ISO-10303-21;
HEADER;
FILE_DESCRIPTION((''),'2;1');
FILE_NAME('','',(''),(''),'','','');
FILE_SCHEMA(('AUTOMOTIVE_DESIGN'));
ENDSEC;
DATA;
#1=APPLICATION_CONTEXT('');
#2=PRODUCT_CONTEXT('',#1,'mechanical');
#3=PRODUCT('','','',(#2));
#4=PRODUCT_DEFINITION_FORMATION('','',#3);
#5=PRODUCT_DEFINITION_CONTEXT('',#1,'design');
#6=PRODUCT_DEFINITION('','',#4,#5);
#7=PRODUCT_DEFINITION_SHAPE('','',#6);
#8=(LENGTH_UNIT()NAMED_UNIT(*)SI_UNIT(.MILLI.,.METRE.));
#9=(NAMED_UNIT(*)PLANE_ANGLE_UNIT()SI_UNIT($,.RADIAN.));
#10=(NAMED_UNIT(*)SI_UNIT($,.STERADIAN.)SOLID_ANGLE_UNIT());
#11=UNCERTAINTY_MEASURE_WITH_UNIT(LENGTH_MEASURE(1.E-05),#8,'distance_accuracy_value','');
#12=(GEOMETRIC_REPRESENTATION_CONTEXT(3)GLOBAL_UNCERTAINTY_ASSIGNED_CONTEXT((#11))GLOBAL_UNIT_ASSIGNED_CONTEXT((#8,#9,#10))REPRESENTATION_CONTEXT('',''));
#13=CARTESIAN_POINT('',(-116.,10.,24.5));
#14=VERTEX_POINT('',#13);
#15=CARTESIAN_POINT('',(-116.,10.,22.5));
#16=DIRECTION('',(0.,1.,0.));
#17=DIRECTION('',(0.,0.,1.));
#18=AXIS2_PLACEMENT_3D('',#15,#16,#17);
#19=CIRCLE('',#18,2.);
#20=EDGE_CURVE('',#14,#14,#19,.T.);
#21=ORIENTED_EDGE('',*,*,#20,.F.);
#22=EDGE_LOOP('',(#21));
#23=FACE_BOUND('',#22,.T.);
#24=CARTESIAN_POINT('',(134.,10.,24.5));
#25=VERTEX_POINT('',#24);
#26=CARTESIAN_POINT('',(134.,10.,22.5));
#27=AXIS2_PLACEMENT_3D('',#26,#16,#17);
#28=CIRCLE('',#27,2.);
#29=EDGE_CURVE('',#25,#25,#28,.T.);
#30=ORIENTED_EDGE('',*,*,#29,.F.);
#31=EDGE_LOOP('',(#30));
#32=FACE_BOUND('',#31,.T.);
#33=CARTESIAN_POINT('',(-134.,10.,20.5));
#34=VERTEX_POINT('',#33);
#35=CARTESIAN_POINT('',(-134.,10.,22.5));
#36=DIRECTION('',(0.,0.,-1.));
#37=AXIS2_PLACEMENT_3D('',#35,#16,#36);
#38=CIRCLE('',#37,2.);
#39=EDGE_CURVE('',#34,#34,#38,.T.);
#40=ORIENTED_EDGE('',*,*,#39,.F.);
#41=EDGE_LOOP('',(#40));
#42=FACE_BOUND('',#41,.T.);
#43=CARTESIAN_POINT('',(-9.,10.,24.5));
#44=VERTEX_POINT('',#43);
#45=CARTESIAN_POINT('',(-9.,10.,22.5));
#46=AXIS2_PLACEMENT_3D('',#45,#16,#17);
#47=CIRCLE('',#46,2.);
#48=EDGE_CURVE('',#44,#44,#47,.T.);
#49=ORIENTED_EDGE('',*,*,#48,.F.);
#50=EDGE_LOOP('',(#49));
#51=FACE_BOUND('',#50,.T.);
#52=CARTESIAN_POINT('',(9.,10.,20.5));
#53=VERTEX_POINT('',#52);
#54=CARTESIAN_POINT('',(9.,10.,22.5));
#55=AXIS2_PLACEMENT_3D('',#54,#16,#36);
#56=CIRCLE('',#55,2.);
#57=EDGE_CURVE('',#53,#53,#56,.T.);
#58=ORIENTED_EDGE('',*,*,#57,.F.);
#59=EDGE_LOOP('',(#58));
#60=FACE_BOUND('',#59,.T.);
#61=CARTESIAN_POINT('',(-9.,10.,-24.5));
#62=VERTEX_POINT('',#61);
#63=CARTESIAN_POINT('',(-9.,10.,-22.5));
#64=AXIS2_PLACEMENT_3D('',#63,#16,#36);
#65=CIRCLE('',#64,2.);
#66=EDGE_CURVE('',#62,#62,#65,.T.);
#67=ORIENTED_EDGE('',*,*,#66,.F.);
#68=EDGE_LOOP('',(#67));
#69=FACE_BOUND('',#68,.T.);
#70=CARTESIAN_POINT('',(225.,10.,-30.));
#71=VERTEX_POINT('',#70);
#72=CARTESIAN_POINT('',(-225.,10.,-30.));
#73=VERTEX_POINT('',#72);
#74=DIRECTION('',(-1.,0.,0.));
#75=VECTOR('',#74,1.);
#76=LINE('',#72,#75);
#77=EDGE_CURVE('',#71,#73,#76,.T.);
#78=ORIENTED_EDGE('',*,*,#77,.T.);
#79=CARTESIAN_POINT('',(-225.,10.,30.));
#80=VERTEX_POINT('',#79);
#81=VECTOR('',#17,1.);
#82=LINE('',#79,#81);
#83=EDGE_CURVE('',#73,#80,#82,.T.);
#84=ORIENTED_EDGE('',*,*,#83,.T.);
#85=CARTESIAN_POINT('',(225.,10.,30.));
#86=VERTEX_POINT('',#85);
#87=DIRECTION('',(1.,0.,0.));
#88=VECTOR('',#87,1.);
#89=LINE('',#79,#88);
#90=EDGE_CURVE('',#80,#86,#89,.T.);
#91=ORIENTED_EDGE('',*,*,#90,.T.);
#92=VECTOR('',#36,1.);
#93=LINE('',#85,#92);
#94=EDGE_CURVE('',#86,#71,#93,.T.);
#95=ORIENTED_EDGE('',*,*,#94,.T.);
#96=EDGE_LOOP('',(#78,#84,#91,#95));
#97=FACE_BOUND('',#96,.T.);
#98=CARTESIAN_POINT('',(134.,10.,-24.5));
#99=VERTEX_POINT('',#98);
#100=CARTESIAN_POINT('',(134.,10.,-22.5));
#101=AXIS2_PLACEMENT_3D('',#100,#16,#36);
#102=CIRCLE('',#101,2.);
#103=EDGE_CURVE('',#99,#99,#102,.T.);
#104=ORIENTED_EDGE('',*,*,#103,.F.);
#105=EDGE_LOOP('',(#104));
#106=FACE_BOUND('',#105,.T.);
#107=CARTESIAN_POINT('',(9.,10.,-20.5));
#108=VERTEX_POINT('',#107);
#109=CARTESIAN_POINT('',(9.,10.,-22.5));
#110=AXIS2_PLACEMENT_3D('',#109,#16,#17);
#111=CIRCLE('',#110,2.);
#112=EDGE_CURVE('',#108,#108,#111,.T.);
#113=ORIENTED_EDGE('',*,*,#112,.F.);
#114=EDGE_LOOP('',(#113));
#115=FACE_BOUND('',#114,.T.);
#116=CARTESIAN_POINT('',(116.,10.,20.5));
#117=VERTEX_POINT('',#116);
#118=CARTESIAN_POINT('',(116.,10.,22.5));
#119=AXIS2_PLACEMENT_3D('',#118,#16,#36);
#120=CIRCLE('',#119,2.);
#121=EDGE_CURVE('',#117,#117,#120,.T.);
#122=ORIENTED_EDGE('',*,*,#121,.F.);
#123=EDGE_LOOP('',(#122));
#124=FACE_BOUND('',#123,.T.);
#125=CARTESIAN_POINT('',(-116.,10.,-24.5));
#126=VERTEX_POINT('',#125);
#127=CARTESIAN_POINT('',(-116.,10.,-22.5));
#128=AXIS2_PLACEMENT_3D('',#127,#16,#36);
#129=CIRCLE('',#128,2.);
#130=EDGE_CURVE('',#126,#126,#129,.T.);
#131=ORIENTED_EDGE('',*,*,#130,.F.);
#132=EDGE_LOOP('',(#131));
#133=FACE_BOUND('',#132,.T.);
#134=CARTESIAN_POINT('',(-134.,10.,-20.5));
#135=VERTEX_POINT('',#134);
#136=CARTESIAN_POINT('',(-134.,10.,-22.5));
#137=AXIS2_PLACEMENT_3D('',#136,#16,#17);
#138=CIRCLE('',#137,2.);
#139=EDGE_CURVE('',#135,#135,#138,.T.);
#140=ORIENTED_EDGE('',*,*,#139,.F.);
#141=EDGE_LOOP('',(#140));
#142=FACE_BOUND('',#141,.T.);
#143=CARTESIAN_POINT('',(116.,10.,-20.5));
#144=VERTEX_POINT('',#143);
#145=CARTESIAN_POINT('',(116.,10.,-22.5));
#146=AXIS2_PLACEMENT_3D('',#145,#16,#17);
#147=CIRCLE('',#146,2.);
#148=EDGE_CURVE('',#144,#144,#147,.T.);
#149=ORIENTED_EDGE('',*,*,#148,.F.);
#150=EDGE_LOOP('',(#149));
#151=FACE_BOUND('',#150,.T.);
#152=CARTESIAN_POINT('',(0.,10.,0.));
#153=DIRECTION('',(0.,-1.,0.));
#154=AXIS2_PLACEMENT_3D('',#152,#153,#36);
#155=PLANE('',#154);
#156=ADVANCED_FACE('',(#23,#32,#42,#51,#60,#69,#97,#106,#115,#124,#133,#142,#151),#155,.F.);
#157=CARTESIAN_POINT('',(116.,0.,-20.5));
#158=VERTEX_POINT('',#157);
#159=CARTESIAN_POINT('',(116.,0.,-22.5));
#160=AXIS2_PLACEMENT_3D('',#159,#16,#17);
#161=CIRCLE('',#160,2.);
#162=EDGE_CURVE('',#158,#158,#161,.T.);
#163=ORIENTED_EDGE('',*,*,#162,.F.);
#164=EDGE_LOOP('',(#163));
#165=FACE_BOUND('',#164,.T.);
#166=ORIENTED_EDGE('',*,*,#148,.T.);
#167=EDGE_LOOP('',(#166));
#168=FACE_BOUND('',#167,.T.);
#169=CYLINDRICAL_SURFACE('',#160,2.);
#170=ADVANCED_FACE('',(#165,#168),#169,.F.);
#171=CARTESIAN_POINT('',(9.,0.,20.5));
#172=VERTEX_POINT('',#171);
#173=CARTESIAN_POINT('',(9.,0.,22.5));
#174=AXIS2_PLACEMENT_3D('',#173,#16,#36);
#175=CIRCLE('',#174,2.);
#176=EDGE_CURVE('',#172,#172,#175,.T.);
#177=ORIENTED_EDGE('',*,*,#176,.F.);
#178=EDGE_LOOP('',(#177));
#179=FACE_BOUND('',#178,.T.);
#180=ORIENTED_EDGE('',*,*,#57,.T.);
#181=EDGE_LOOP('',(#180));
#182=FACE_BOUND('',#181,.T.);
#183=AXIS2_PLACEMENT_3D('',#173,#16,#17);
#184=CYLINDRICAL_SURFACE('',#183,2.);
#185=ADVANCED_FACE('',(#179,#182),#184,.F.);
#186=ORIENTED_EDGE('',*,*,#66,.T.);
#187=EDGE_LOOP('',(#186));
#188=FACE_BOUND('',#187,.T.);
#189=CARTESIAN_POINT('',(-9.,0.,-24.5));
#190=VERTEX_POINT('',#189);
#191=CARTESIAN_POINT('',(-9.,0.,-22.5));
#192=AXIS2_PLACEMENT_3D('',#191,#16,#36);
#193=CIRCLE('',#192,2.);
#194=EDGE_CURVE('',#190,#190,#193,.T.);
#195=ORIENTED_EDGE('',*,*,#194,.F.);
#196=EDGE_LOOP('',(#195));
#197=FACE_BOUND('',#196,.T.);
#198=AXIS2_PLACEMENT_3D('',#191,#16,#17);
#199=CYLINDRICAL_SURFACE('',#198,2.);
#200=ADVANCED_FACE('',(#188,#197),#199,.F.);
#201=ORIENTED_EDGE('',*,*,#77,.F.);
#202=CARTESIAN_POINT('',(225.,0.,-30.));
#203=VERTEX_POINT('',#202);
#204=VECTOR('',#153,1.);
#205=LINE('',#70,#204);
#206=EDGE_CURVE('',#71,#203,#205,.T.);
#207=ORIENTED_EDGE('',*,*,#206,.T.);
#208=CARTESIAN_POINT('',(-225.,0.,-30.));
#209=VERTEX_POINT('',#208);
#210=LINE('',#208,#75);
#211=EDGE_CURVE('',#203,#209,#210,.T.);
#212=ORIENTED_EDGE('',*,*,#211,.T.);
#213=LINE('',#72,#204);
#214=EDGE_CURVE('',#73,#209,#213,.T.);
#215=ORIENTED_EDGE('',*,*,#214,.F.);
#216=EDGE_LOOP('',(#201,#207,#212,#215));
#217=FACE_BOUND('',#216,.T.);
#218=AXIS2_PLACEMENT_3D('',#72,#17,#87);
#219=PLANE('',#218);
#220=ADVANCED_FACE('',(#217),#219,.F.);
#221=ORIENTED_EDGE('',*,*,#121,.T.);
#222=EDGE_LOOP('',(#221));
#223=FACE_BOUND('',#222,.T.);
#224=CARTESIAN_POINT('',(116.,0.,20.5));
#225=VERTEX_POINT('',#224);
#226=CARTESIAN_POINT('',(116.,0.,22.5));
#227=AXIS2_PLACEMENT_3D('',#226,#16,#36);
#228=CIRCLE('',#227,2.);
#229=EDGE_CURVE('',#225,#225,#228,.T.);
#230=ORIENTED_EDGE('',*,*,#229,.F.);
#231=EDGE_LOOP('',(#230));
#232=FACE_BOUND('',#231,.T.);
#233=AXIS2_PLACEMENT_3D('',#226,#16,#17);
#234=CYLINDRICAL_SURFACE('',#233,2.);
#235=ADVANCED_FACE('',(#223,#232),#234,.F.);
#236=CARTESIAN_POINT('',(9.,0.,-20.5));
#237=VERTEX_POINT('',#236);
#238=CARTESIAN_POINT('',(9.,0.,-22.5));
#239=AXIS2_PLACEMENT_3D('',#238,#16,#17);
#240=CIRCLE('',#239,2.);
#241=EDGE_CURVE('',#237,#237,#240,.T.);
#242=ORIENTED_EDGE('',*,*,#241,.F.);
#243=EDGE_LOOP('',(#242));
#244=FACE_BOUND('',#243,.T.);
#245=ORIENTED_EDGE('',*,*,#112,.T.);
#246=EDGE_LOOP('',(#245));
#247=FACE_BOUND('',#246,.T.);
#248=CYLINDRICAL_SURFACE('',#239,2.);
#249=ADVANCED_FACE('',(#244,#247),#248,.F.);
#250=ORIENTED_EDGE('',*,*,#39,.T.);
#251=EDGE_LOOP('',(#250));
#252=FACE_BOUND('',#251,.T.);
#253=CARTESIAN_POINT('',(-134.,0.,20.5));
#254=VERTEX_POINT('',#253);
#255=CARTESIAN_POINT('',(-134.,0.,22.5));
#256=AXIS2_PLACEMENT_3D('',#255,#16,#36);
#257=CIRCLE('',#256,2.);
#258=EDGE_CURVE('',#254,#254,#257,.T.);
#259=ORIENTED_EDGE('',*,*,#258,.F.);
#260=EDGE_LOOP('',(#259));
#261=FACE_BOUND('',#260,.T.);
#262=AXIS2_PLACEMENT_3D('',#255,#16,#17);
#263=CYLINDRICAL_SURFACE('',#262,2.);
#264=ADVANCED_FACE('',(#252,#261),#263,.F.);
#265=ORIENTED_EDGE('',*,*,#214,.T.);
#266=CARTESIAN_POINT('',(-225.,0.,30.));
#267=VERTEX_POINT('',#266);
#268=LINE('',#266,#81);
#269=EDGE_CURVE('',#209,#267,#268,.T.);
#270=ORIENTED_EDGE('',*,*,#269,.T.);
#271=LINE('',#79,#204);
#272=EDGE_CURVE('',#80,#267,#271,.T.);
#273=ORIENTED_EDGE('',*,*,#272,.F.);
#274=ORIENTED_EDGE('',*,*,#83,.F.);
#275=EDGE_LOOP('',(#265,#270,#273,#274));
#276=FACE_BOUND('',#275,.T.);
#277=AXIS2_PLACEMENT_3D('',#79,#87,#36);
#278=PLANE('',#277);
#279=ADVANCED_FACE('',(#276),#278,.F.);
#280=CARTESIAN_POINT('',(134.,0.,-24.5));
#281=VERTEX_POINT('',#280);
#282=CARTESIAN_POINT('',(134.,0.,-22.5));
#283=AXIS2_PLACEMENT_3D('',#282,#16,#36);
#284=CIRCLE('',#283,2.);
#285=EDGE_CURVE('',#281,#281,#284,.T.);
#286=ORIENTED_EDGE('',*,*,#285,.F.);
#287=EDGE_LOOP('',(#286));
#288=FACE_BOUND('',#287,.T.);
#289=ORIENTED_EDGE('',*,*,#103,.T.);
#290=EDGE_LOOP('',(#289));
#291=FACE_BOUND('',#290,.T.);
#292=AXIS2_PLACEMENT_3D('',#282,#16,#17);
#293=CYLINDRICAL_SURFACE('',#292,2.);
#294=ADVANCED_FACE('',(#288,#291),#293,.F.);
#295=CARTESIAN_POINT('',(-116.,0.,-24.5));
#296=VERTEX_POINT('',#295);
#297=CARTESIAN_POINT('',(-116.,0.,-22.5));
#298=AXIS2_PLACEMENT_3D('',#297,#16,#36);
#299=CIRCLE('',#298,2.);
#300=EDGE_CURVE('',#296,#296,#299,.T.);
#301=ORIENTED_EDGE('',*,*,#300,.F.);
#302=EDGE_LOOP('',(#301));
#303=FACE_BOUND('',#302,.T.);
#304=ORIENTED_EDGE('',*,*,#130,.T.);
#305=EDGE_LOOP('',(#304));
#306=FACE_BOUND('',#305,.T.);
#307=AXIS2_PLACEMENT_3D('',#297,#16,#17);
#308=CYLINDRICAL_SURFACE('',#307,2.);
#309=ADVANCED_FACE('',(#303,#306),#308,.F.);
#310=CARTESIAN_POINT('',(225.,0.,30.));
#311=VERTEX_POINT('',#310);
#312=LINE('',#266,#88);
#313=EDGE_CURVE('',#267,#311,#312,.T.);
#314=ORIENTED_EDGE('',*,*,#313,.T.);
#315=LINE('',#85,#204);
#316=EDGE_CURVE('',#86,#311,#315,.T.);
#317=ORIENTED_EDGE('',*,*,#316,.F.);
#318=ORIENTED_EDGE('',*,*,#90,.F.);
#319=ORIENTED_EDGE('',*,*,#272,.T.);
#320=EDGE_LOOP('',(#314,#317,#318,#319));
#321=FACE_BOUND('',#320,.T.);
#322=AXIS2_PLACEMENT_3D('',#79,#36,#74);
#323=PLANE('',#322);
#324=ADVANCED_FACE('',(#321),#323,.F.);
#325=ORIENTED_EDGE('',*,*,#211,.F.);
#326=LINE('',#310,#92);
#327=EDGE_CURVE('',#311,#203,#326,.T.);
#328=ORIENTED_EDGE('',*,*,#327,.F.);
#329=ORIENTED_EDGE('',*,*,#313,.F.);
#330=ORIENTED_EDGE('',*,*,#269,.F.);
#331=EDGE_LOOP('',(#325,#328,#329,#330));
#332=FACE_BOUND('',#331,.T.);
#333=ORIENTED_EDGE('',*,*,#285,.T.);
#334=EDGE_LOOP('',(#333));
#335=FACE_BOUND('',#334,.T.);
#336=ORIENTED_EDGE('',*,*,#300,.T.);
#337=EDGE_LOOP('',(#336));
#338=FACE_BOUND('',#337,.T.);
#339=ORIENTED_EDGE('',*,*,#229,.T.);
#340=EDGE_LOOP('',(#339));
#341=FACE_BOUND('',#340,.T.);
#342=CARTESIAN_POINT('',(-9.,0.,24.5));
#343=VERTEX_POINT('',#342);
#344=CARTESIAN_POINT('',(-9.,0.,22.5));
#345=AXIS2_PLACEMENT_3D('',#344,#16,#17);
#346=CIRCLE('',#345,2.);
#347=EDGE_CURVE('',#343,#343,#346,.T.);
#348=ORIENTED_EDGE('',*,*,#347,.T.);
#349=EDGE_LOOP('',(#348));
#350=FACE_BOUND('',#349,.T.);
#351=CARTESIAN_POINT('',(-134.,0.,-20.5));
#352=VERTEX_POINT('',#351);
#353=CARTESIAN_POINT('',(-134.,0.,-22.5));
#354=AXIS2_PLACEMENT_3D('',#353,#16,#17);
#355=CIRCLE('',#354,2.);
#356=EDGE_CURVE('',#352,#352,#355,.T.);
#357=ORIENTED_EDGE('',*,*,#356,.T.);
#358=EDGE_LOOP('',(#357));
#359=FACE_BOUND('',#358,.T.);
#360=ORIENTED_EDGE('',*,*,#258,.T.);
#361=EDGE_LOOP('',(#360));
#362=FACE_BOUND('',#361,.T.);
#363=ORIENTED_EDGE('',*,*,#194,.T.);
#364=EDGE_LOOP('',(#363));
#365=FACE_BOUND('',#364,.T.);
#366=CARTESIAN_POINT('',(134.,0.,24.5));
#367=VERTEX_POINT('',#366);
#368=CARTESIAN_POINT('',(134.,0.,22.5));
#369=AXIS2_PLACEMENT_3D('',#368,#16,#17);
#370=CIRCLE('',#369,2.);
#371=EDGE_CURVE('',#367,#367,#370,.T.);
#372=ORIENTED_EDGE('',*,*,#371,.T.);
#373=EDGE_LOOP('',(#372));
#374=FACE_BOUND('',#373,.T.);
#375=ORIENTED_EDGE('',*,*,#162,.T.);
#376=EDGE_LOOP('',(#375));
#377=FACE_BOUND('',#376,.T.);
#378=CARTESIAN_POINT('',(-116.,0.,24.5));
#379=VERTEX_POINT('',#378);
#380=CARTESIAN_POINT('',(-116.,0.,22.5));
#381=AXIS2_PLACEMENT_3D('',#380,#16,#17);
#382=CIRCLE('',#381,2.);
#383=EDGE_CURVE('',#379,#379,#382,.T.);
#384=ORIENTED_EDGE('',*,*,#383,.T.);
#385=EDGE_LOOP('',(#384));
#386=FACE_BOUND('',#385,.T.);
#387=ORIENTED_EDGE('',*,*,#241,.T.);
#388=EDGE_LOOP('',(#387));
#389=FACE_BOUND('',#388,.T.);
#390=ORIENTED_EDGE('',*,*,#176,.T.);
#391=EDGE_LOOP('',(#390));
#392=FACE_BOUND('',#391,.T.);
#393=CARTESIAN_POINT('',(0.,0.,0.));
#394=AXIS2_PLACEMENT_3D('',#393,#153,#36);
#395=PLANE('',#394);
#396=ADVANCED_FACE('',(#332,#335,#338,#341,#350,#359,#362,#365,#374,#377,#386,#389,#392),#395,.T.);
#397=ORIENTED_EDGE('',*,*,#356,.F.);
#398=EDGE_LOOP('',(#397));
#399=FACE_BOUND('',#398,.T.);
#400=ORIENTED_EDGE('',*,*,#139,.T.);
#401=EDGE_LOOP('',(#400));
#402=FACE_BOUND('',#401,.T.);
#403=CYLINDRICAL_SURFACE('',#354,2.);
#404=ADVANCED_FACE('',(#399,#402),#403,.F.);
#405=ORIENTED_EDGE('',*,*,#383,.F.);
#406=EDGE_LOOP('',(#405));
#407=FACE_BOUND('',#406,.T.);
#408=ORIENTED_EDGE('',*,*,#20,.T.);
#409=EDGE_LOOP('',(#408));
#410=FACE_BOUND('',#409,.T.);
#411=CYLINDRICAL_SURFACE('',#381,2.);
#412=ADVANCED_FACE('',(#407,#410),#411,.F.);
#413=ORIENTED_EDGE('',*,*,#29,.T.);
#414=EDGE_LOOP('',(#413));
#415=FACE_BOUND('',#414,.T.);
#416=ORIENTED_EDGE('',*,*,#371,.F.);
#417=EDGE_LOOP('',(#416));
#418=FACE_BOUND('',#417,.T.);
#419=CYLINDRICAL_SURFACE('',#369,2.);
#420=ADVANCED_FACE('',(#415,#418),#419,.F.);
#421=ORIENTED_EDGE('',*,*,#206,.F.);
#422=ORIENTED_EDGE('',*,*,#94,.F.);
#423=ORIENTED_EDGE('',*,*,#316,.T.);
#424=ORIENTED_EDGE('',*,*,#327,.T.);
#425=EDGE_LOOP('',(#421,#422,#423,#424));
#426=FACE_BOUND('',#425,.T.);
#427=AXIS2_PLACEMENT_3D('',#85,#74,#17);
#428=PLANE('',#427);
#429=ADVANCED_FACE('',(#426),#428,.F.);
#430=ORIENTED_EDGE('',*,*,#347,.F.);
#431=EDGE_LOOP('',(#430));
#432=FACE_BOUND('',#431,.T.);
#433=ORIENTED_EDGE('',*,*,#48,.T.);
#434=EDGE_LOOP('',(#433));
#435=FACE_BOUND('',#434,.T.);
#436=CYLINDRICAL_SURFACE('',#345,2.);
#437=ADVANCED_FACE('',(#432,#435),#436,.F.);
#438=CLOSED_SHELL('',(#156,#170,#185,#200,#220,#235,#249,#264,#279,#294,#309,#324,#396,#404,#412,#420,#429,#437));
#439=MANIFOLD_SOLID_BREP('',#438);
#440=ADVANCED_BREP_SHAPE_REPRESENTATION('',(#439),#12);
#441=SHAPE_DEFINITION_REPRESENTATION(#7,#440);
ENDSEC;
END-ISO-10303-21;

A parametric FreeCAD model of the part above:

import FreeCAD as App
import Part
import Sketcher
from FreeCAD import Vector

doc = App.newDocument("Part")
body = doc.addObject("PartDesign::Body", "Body")

sketch1 = body.newObject("Sketcher::SketchObject", "Sketch")
sketch1.AttachmentSupport = (doc.getObject("XZ_Plane"), [""])
sketch1.MapMode = "FlatFace"
sketch1.addGeometry(Part.LineSegment(Vector(-225, -30, 0), Vector(-225, 30, 0)), False)
sketch1.addGeometry(Part.LineSegment(Vector(-225, 30, 0), Vector(225, 30, 0)), False)
sketch1.addGeometry(Part.LineSegment(Vector(225, 30, 0), Vector(225, -30, 0)), False)
sketch1.addGeometry(Part.LineSegment(Vector(225, -30, 0), Vector(-225, -30, 0)), False)
sketch1.addConstraint(Sketcher.Constraint("Coincident", 0, 2, 1, 1))
sketch1.addConstraint(Sketcher.Constraint("Coincident", 1, 2, 2, 1))
sketch1.addConstraint(Sketcher.Constraint("Coincident", 2, 2, 3, 1))
sketch1.addConstraint(Sketcher.Constraint("Coincident", 3, 2, 0, 1))
sketch1.addConstraint(Sketcher.Constraint("Vertical", 0))
sketch1.addConstraint(Sketcher.Constraint("Horizontal", 1))
sketch1.addConstraint(Sketcher.Constraint("Vertical", 2))
sketch1.addConstraint(Sketcher.Constraint("Horizontal", 3))
sketch1.addConstraint(Sketcher.Constraint("Symmetric", 0, 2, 2, 2, -1, 1))
sketch1.addConstraint(Sketcher.Constraint("DistanceX", 1, 1, 1, 2, 450.0))
sketch1.addConstraint(Sketcher.Constraint("DistanceY", 0, 1, 0, 2, 60.0))
pad1 = body.newObject("PartDesign::Pad", "Pad")
pad1.Profile = sketch1
pad1.Length = 10
pad1.Reversed = True

sketch2 = body.newObject("Sketcher::SketchObject", "Sketch001")
sketch2.AttachmentSupport = (doc.getObject("XZ_Plane"), [""])
sketch2.MapMode = "FlatFace"
sketch2.AttachmentOffset = App.Placement(Vector(0, 0, -10), App.Rotation())
sketch2.addGeometry(Part.Circle(Vector(9, -22.5, 0), Vector(0, 0, 1), 2), False)
sketch2.addGeometry(Part.Circle(Vector(116, -22.5, 0), Vector(0, 0, 1), 2), False)
sketch2.addGeometry(Part.Circle(Vector(134, -22.5, 0), Vector(0, 0, 1), 2), False)
sketch2.addGeometry(Part.Circle(Vector(134, 22.5, 0), Vector(0, 0, 1), 2), False)
sketch2.addGeometry(Part.Circle(Vector(116, 22.5, 0), Vector(0, 0, 1), 2), False)
sketch2.addGeometry(Part.Circle(Vector(9, 22.5, 0), Vector(0, 0, 1), 2), False)
sketch2.addGeometry(Part.Circle(Vector(-116, -22.5, 0), Vector(0, 0, 1), 2), False)
sketch2.addGeometry(Part.Circle(Vector(-134, -22.5, 0), Vector(0, 0, 1), 2), False)
sketch2.addGeometry(Part.Circle(Vector(-134, 22.5, 0), Vector(0, 0, 1), 2), False)
sketch2.addGeometry(Part.Circle(Vector(-116, 22.5, 0), Vector(0, 0, 1), 2), False)
sketch2.addGeometry(Part.Circle(Vector(-9, 22.5, 0), Vector(0, 0, 1), 2), False)
sketch2.addGeometry(Part.Circle(Vector(-9, -22.5, 0), Vector(0, 0, 1), 2), False)
sketch2.addConstraint(Sketcher.Constraint("Equal", 0, 1))
sketch2.addConstraint(Sketcher.Constraint("Equal", 1, 2))
sketch2.addConstraint(Sketcher.Constraint("Equal", 2, 3))
sketch2.addConstraint(Sketcher.Constraint("Equal", 3, 4))
sketch2.addConstraint(Sketcher.Constraint("Equal", 4, 5))
sketch2.addConstraint(Sketcher.Constraint("Equal", 5, 6))
sketch2.addConstraint(Sketcher.Constraint("Equal", 6, 7))
sketch2.addConstraint(Sketcher.Constraint("Equal", 7, 8))
sketch2.addConstraint(Sketcher.Constraint("Equal", 8, 9))
sketch2.addConstraint(Sketcher.Constraint("Equal", 9, 10))
sketch2.addConstraint(Sketcher.Constraint("Equal", 10, 11))
sketch2.addConstraint(Sketcher.Constraint("Symmetric", 4, 3, 6, 3, -1, 1))
sketch2.addConstraint(Sketcher.Constraint("Symmetric", 3, 3, 7, 3, -1, 1))
sketch2.addConstraint(Sketcher.Constraint("Symmetric", 2, 3, 8, 3, -1, 1))
sketch2.addConstraint(Sketcher.Constraint("Symmetric", 1, 3, 9, 3, -1, 1))
sketch2.addConstraint(Sketcher.Constraint("Symmetric", 0, 3, 10, 3, -1, 1))
sketch2.addConstraint(Sketcher.Constraint("Symmetric", 5, 3, 11, 3, -1, 1))
sketch2.addConstraint(Sketcher.Constraint("Symmetric", 1, 3, 6, 3, -2))
sketch2.addConstraint(Sketcher.Constraint("Symmetric", 2, 3, 7, 3, -2))
sketch2.addConstraint(Sketcher.Constraint("Symmetric", 5, 3, 10, 3, -2))
sketch2.addConstraint(Sketcher.Constraint("Horizontal", 0, 3, 1, 3))
sketch2.addConstraint(Sketcher.Constraint("Horizontal", 1, 3, 2, 3))
sketch2.addConstraint(Sketcher.Constraint("Diameter", 0, 4.0))
sketch2.addConstraint(Sketcher.Constraint("DistanceX", -1, 1, 0, 3, 9.0))
sketch2.addConstraint(Sketcher.Constraint("DistanceX", -1, 1, 1, 3, 116.0))
sketch2.addConstraint(Sketcher.Constraint("DistanceX", -1, 1, 2, 3, 134.0))
sketch2.addConstraint(Sketcher.Constraint("DistanceY", 2, 3, 3, 3, 45.0))
pocket1 = body.newObject("PartDesign::Pocket", "Pocket")
pocket1.Profile = sketch2
pocket1.Type = "ThroughAll"
pocket1.Reversed = True

doc.recompute()
